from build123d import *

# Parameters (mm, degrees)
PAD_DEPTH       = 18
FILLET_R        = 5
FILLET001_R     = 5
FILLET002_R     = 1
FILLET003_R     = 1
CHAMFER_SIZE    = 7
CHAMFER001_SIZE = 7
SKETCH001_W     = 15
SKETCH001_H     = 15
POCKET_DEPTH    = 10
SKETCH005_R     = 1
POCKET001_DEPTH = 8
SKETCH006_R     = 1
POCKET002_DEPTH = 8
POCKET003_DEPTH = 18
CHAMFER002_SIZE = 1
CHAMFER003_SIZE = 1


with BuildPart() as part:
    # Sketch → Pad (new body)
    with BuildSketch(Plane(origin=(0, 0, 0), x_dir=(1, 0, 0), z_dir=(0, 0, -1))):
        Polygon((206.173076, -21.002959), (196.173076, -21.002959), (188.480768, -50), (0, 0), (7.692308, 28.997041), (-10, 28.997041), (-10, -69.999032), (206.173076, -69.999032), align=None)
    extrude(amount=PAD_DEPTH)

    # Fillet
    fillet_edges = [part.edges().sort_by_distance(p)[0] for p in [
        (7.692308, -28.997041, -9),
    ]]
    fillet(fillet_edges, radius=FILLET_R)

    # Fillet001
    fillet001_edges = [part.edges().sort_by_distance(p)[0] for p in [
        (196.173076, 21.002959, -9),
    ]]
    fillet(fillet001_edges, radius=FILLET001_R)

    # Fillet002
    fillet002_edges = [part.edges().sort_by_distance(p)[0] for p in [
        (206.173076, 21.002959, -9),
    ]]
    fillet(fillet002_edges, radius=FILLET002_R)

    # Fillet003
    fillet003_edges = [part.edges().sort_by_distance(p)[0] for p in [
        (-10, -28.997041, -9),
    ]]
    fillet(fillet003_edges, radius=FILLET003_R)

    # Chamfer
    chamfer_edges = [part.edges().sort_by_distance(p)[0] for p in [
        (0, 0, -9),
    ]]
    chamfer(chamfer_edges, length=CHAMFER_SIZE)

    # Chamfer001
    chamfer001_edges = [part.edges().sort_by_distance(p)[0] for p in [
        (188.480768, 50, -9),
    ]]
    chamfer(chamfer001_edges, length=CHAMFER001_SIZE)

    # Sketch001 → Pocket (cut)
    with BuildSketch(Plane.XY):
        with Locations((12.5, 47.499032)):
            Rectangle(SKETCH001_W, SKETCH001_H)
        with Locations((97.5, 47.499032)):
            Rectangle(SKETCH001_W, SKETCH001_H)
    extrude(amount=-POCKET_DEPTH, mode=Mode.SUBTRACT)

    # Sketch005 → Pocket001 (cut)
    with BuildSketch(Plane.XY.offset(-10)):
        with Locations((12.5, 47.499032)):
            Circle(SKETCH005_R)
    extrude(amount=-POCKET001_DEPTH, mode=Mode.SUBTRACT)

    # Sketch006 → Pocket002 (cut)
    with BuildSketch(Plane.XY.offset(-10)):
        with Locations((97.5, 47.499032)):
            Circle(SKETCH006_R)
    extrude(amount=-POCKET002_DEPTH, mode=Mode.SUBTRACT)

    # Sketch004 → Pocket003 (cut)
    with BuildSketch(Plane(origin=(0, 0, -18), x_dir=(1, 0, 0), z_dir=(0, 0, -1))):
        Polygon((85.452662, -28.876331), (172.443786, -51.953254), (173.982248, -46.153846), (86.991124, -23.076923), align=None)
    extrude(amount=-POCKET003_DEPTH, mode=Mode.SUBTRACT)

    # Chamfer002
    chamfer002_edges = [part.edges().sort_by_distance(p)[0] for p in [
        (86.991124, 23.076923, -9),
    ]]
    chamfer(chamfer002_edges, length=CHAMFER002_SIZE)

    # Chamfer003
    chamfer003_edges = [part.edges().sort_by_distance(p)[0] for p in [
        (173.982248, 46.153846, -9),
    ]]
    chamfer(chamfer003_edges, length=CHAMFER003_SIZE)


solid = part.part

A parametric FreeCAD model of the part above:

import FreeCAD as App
import Part
import Sketcher
Q = App.Units.Quantity


def edges_at(feature, points):
    """Names of the edges that pass closest to the given points."""
    edges = feature.Shape.Edges
    near = lambda p: min(range(len(edges)), key=lambda i: edges[i].distToShape(Part.Vertex(*p))[0])
    return sorted({f"Edge{near(p) + 1}" for p in points})


def add_polygon(sketch, points):
    """Adds a closed chain of lines whose ends are joined by coincident constraints."""
    first, n = sketch.GeometryCount, len(points)
    for a, b in zip(points, points[1:] + points[:1]):
        sketch.addGeometry(Part.LineSegment(App.Vector(*a, 0), App.Vector(*b, 0)), False)
    for i in range(n):
        sketch.addConstraint(Sketcher.Constraint("Coincident", first + i, 2, first + (i + 1) % n, 1))

doc = App.newDocument("Part")
body = doc.addObject("PartDesign::Body", "Body")

sketch1 = body.newObject("Sketcher::SketchObject", "Sketch")
sketch1.AttachmentSupport = (doc.getObject("XY_Plane"), [""])
sketch1.MapMode = "FlatFace"
add_polygon(sketch1, [(206, 21), (196, 21), (188, 50), (0, 0), (8, -29), (-10, -29), (-10, 70), (206, 70)])
sketch1.addConstraint([
    Sketcher.Constraint("Horizontal", 0),
    Sketcher.Constraint("Horizontal", 4),
    Sketcher.Constraint("Vertical", 5),
    Sketcher.Constraint("Horizontal", 6),
    Sketcher.Constraint("Vertical", 7),
    Sketcher.Constraint("Coincident", 2, 2, -1, 1),
    Sketcher.Constraint("Perpendicular", 1, 2),
    Sketcher.Constraint("Perpendicular", 2, 3),
    Sketcher.Constraint("Equal", 1, 3),
    Sketcher.Constraint("DistanceX", 0, 2, 0, 1, Q("10 mm")),
    Sketcher.Constraint("Distance", 1, Q("30 mm")),
    Sketcher.Constraint("Distance", 2, Q("195 mm")),
    Sketcher.Constraint("DistanceY", -1, 1, 1, 2, Q("50 mm")),
    Sketcher.Constraint("DistanceX", 4, 2, -1, 1, Q("10 mm")),
    Sketcher.Constraint("DistanceY", 5, 1, 5, 2, Q("98.996073 mm")),
])
pad1 = body.newObject("PartDesign::Pad", "Pad")
pad1.Profile = sketch1
pad1.Length = 18
pad1.Reversed = True
doc.recompute()

fillet = body.newObject("PartDesign::Fillet", "Fillet")
fillet.Base = (pad1, edges_at(pad1, [(7.692, -28.997, -9)]))
fillet.Radius = 5
doc.recompute()

fillet2 = body.newObject("PartDesign::Fillet", "Fillet001")
fillet2.Base = (fillet, edges_at(fillet, [(196.173, 21.003, -9)]))
fillet2.Radius = 5
doc.recompute()

fillet3 = body.newObject("PartDesign::Fillet", "Fillet002")
fillet3.Base = (fillet2, edges_at(fillet2, [(206.173, 21.003, -9)]))
fillet3.Radius = 1
doc.recompute()

fillet4 = body.newObject("PartDesign::Fillet", "Fillet003")
fillet4.Base = (fillet3, edges_at(fillet3, [(-10, -28.997, -9)]))
fillet4.Radius = 1
doc.recompute()

chamfer = body.newObject("PartDesign::Chamfer", "Chamfer")
chamfer.Base = (fillet4, edges_at(fillet4, [(0, 0, -9)]))
chamfer.Size = 7
doc.recompute()

chamfer2 = body.newObject("PartDesign::Chamfer", "Chamfer001")
chamfer2.Base = (chamfer, edges_at(chamfer, [(188.481, 50, -9)]))
chamfer2.Size = 7

sketch2 = body.newObject("Sketcher::SketchObject", "Sketch001")
sketch2.AttachmentSupport = (doc.getObject("XY_Plane"), [""])
sketch2.MapMode = "FlatFace"
add_polygon(sketch2, [(5, 55), (5, 40), (20, 40), (20, 55)])
add_polygon(sketch2, [(90, 55), (90, 40), (105, 40), (105, 55)])
sketch2.addConstraint([
    Sketcher.Constraint("Vertical", 0),
    Sketcher.Constraint("Horizontal", 1),
    Sketcher.Constraint("Vertical", 2),
    Sketcher.Constraint("Horizontal", 3),
    Sketcher.Constraint("Vertical", 4),
    Sketcher.Constraint("Horizontal", 5),
    Sketcher.Constraint("Vertical", 6),
    Sketcher.Constraint("Horizontal", 7),
    Sketcher.Constraint("Horizontal", 1, 2, 4, 2),
    Sketcher.Constraint("Horizontal", 3, 2, 6, 2),
    Sketcher.Constraint("Equal", 3, 5),
    Sketcher.Constraint("Equal", 7, 0),
    Sketcher.Constraint("DistanceX", 1, 1, 1, 2, Q("15 mm")),
    Sketcher.Constraint("DistanceX", -1, 1, 0, 2, Q("5 mm")),
    Sketcher.Constraint("DistanceX", -1, 1, 4, 2, Q("90 mm")),
    Sketcher.Constraint("DistanceY", -1, 1, 0, 2, Q("39.999032 mm")),
])
pocket1 = body.newObject("PartDesign::Pocket", "Pocket")
pocket1.Profile = sketch2
pocket1.Length = 10

sketch3 = body.newObject("Sketcher::SketchObject", "Sketch002")
sketch3.AttachmentSupport = (doc.getObject("XY_Plane"), [""])
sketch3.MapMode = "FlatFace"
sketch3.AttachmentOffset = App.Placement(App.Vector(0, 0, -10), App.Rotation())
sketch3.addGeometry(Part.Circle(App.Vector(12.5, 47.5, 0), App.Vector(0, 0, 1), 1), False)
sketch3.addConstraint([
    Sketcher.Constraint("Diameter", 0, Q("2 mm")),
    Sketcher.Constraint("DistanceX", -1, 1, 0, 3, Q("12.5 mm")),
    Sketcher.Constraint("DistanceY", -1, 1, 0, 3, Q("47.499032 mm")),
])
pocket2 = body.newObject("PartDesign::Pocket", "Pocket001")
pocket2.Profile = sketch3
pocket2.Length = 8

sketch4 = body.newObject("Sketcher::SketchObject", "Sketch003")
sketch4.AttachmentSupport = (doc.getObject("XY_Plane"), [""])
sketch4.MapMode = "FlatFace"
sketch4.AttachmentOffset = App.Placement(App.Vector(0, 0, -10), App.Rotation())
sketch4.addGeometry(Part.Circle(App.Vector(97.5, 47.5, 0), App.Vector(0, 0, 1), 1), False)
sketch4.addConstraint([
    Sketcher.Constraint("Diameter", 0, Q("2 mm")),
    Sketcher.Constraint("DistanceX", -1, 1, 0, 3, Q("97.5 mm")),
    Sketcher.Constraint("DistanceY", -1, 1, 0, 3, Q("47.499032 mm")),
])
pocket3 = body.newObject("PartDesign::Pocket", "Pocket002")
pocket3.Profile = sketch4
pocket3.Length = 8

sketch5 = body.newObject("Sketcher::SketchObject", "Sketch004")
sketch5.AttachmentSupport = (doc.getObject("XY_Plane"), [""])
sketch5.MapMode = "FlatFace"
sketch5.AttachmentOffset = App.Placement(App.Vector(0, 0, -18), App.Rotation())
add_polygon(sketch5, [(85, 29), (172, 52), (174, 46), (87, 23)])
sketch5.addConstraint([
    Sketcher.Constraint("Perpendicular", 0, 1),
    Sketcher.Constraint("Perpendicular", 1, 2),
    Sketcher.Constraint("Perpendicular", 2, 3),
    Sketcher.Constraint("Distance", 0, Q("90 mm")),
    Sketcher.Constraint("Distance", 1, Q("6 mm")),
    Sketcher.Constraint("DistanceX", -1, 1, 1, 2, Q("173.982248 mm")),
    Sketcher.Constraint("DistanceY", -1, 1, 3, 2, Q("28.876331 mm")),
    Sketcher.Constraint("DistanceX", 2, 2, 0, 2, Q("85.452662 mm")),
])
pocket4 = body.newObject("PartDesign::Pocket", "Pocket003")
pocket4.Profile = sketch5
pocket4.Length = 18
pocket4.Reversed = True
doc.recompute()

chamfer3 = body.newObject("PartDesign::Chamfer", "Chamfer002")
chamfer3.Base = (pocket4, edges_at(pocket4, [(86.991, 23.077, -9)]))
chamfer3.Size = 1
doc.recompute()

chamfer4 = body.newObject("PartDesign::Chamfer", "Chamfer003")
chamfer4.Base = (chamfer3, edges_at(chamfer3, [(173.982, 46.154, -9)]))
chamfer4.Size = 1

doc.recompute()
